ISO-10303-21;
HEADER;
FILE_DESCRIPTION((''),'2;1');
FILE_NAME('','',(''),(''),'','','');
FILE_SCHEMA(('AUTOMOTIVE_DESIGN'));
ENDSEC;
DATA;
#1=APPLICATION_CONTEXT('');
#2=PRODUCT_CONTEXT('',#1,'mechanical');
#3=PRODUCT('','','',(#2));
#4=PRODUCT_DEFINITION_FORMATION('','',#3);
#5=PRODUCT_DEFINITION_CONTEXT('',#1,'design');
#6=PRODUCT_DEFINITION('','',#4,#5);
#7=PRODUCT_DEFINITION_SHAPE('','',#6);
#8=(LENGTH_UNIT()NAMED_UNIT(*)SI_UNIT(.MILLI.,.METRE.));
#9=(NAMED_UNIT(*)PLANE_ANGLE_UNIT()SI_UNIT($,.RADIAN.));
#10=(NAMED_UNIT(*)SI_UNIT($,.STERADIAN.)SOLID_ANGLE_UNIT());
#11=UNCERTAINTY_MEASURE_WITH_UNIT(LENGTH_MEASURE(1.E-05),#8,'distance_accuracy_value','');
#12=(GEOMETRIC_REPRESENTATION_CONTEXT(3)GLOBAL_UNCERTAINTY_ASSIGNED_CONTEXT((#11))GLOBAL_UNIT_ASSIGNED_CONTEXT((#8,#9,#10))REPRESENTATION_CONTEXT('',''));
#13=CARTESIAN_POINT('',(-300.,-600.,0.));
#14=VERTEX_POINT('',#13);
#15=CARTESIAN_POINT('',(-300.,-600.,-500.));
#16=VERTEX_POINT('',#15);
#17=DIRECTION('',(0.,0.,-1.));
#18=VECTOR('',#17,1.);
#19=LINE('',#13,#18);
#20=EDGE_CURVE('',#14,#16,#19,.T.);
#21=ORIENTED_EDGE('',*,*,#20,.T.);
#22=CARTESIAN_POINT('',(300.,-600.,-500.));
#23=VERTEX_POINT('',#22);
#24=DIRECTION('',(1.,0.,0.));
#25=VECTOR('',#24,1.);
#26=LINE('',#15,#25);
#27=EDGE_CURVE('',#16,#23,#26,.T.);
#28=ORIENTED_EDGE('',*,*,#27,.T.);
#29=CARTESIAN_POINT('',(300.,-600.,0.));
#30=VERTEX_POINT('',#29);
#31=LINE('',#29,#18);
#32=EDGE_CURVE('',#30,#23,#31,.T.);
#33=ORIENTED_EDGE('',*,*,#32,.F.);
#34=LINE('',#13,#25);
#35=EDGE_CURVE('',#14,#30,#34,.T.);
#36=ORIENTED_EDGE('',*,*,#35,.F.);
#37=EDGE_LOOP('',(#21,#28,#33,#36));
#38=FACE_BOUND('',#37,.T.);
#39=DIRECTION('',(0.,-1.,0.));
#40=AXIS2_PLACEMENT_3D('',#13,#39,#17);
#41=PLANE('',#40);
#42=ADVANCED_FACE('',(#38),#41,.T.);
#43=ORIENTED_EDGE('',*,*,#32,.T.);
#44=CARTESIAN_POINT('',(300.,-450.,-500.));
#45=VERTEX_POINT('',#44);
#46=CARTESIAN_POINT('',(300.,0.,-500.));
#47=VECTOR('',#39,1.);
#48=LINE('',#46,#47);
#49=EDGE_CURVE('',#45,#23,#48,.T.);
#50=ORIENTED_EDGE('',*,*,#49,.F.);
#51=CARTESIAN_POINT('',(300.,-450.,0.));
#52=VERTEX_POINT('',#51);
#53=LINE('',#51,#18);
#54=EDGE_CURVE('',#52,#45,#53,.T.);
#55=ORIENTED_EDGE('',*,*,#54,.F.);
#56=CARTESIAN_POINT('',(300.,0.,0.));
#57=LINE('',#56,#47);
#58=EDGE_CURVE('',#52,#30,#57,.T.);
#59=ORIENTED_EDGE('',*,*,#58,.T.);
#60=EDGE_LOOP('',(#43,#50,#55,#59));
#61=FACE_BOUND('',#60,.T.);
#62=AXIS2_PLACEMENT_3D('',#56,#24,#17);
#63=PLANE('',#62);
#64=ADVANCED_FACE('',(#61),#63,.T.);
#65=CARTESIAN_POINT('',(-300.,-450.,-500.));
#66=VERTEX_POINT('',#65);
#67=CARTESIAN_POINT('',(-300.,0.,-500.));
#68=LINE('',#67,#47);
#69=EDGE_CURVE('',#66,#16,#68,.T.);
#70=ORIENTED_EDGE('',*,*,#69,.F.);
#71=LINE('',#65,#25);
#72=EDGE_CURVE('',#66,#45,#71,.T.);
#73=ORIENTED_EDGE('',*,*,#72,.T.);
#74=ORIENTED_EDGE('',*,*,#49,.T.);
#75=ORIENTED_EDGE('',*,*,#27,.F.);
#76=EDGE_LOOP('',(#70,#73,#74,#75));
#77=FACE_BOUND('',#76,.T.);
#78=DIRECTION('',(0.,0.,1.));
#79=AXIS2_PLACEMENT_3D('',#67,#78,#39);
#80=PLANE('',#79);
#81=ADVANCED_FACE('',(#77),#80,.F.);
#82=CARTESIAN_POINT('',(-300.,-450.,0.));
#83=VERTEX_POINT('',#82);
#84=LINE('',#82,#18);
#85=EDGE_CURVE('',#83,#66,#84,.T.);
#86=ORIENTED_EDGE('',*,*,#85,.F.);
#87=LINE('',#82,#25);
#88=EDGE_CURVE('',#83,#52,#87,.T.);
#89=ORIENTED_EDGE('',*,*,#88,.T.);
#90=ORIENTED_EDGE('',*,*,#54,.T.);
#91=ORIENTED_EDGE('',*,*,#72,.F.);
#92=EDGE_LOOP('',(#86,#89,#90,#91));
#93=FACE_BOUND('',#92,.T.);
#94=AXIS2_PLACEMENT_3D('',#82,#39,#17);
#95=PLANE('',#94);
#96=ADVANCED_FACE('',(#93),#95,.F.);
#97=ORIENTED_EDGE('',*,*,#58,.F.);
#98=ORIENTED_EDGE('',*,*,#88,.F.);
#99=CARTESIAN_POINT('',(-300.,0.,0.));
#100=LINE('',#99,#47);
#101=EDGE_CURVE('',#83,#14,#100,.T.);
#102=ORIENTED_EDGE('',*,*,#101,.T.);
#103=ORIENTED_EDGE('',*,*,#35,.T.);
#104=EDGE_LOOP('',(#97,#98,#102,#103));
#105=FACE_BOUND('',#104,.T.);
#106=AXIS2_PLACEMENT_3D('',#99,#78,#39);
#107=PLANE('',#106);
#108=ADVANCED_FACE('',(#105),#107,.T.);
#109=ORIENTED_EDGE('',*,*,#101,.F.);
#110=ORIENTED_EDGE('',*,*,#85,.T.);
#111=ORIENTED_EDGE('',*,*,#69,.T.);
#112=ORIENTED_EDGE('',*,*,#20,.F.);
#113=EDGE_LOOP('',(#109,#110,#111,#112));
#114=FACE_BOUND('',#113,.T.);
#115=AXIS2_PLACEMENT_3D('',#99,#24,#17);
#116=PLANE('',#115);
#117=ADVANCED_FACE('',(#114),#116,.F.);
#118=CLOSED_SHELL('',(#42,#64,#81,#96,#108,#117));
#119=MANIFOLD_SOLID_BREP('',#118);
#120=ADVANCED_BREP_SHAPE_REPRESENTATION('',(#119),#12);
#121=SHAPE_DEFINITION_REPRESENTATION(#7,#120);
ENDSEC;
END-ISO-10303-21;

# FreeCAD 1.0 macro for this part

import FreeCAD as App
import Part
import Sketcher
from FreeCAD import Vector
Q = App.Units.Quantity

doc = App.newDocument("Part")
body = doc.addObject("PartDesign::Body", "Body")

# Sketch on YZ plane
sketch1 = body.newObject("Sketcher::SketchObject", "Sketch")
sketch1.AttachmentSupport = (doc.getObject("YZ_Plane"), [""])
sketch1.MapMode = "FlatFace"
sketch1.addGeometry(Part.LineSegment(Vector(-600, 0, 0), Vector(-600, -500, 0)), False)
sketch1.addGeometry(Part.LineSegment(Vector(-600, -500, 0), Vector(-450, -500, 0)), False)
sketch1.addGeometry(Part.LineSegment(Vector(-450, -500, 0), Vector(-450, 0, 0)), False)
sketch1.addGeometry(Part.LineSegment(Vector(-450, 0, 0), Vector(-600, 0, 0)), False)
sketch1.addConstraint(Sketcher.Constraint("Coincident", 0, 2, 1, 1))
sketch1.addConstraint(Sketcher.Constraint("Coincident", 1, 2, 2, 1))
sketch1.addConstraint(Sketcher.Constraint("Coincident", 2, 2, 3, 1))
sketch1.addConstraint(Sketcher.Constraint("Coincident", 3, 2, 0, 1))
sketch1.addConstraint(Sketcher.Constraint("Vertical", 0))
sketch1.addConstraint(Sketcher.Constraint("Horizontal", 1))
sketch1.addConstraint(Sketcher.Constraint("Vertical", 2))
sketch1.addConstraint(Sketcher.Constraint("Horizontal", 3))
sketch1.addConstraint(Sketcher.Constraint("PointOnObject", 2, 2, -1))
sketch1.addConstraint(Sketcher.Constraint("DistanceX", 1, 1, 1, 2, Q("150 mm")))
sketch1.addConstraint(Sketcher.Constraint("DistanceY", 0, 2, 0, 1, Q("500 mm")))
sketch1.addConstraint(Sketcher.Constraint("DistanceX", 0, 2, -1, 1, Q("600 mm")))
pad1 = body.newObject("PartDesign::Pad", "Pad")
pad1.Profile = sketch1
pad1.Type = "TwoLengths"
pad1.Length = 300
pad1.Length2 = 300

doc.recompute()
